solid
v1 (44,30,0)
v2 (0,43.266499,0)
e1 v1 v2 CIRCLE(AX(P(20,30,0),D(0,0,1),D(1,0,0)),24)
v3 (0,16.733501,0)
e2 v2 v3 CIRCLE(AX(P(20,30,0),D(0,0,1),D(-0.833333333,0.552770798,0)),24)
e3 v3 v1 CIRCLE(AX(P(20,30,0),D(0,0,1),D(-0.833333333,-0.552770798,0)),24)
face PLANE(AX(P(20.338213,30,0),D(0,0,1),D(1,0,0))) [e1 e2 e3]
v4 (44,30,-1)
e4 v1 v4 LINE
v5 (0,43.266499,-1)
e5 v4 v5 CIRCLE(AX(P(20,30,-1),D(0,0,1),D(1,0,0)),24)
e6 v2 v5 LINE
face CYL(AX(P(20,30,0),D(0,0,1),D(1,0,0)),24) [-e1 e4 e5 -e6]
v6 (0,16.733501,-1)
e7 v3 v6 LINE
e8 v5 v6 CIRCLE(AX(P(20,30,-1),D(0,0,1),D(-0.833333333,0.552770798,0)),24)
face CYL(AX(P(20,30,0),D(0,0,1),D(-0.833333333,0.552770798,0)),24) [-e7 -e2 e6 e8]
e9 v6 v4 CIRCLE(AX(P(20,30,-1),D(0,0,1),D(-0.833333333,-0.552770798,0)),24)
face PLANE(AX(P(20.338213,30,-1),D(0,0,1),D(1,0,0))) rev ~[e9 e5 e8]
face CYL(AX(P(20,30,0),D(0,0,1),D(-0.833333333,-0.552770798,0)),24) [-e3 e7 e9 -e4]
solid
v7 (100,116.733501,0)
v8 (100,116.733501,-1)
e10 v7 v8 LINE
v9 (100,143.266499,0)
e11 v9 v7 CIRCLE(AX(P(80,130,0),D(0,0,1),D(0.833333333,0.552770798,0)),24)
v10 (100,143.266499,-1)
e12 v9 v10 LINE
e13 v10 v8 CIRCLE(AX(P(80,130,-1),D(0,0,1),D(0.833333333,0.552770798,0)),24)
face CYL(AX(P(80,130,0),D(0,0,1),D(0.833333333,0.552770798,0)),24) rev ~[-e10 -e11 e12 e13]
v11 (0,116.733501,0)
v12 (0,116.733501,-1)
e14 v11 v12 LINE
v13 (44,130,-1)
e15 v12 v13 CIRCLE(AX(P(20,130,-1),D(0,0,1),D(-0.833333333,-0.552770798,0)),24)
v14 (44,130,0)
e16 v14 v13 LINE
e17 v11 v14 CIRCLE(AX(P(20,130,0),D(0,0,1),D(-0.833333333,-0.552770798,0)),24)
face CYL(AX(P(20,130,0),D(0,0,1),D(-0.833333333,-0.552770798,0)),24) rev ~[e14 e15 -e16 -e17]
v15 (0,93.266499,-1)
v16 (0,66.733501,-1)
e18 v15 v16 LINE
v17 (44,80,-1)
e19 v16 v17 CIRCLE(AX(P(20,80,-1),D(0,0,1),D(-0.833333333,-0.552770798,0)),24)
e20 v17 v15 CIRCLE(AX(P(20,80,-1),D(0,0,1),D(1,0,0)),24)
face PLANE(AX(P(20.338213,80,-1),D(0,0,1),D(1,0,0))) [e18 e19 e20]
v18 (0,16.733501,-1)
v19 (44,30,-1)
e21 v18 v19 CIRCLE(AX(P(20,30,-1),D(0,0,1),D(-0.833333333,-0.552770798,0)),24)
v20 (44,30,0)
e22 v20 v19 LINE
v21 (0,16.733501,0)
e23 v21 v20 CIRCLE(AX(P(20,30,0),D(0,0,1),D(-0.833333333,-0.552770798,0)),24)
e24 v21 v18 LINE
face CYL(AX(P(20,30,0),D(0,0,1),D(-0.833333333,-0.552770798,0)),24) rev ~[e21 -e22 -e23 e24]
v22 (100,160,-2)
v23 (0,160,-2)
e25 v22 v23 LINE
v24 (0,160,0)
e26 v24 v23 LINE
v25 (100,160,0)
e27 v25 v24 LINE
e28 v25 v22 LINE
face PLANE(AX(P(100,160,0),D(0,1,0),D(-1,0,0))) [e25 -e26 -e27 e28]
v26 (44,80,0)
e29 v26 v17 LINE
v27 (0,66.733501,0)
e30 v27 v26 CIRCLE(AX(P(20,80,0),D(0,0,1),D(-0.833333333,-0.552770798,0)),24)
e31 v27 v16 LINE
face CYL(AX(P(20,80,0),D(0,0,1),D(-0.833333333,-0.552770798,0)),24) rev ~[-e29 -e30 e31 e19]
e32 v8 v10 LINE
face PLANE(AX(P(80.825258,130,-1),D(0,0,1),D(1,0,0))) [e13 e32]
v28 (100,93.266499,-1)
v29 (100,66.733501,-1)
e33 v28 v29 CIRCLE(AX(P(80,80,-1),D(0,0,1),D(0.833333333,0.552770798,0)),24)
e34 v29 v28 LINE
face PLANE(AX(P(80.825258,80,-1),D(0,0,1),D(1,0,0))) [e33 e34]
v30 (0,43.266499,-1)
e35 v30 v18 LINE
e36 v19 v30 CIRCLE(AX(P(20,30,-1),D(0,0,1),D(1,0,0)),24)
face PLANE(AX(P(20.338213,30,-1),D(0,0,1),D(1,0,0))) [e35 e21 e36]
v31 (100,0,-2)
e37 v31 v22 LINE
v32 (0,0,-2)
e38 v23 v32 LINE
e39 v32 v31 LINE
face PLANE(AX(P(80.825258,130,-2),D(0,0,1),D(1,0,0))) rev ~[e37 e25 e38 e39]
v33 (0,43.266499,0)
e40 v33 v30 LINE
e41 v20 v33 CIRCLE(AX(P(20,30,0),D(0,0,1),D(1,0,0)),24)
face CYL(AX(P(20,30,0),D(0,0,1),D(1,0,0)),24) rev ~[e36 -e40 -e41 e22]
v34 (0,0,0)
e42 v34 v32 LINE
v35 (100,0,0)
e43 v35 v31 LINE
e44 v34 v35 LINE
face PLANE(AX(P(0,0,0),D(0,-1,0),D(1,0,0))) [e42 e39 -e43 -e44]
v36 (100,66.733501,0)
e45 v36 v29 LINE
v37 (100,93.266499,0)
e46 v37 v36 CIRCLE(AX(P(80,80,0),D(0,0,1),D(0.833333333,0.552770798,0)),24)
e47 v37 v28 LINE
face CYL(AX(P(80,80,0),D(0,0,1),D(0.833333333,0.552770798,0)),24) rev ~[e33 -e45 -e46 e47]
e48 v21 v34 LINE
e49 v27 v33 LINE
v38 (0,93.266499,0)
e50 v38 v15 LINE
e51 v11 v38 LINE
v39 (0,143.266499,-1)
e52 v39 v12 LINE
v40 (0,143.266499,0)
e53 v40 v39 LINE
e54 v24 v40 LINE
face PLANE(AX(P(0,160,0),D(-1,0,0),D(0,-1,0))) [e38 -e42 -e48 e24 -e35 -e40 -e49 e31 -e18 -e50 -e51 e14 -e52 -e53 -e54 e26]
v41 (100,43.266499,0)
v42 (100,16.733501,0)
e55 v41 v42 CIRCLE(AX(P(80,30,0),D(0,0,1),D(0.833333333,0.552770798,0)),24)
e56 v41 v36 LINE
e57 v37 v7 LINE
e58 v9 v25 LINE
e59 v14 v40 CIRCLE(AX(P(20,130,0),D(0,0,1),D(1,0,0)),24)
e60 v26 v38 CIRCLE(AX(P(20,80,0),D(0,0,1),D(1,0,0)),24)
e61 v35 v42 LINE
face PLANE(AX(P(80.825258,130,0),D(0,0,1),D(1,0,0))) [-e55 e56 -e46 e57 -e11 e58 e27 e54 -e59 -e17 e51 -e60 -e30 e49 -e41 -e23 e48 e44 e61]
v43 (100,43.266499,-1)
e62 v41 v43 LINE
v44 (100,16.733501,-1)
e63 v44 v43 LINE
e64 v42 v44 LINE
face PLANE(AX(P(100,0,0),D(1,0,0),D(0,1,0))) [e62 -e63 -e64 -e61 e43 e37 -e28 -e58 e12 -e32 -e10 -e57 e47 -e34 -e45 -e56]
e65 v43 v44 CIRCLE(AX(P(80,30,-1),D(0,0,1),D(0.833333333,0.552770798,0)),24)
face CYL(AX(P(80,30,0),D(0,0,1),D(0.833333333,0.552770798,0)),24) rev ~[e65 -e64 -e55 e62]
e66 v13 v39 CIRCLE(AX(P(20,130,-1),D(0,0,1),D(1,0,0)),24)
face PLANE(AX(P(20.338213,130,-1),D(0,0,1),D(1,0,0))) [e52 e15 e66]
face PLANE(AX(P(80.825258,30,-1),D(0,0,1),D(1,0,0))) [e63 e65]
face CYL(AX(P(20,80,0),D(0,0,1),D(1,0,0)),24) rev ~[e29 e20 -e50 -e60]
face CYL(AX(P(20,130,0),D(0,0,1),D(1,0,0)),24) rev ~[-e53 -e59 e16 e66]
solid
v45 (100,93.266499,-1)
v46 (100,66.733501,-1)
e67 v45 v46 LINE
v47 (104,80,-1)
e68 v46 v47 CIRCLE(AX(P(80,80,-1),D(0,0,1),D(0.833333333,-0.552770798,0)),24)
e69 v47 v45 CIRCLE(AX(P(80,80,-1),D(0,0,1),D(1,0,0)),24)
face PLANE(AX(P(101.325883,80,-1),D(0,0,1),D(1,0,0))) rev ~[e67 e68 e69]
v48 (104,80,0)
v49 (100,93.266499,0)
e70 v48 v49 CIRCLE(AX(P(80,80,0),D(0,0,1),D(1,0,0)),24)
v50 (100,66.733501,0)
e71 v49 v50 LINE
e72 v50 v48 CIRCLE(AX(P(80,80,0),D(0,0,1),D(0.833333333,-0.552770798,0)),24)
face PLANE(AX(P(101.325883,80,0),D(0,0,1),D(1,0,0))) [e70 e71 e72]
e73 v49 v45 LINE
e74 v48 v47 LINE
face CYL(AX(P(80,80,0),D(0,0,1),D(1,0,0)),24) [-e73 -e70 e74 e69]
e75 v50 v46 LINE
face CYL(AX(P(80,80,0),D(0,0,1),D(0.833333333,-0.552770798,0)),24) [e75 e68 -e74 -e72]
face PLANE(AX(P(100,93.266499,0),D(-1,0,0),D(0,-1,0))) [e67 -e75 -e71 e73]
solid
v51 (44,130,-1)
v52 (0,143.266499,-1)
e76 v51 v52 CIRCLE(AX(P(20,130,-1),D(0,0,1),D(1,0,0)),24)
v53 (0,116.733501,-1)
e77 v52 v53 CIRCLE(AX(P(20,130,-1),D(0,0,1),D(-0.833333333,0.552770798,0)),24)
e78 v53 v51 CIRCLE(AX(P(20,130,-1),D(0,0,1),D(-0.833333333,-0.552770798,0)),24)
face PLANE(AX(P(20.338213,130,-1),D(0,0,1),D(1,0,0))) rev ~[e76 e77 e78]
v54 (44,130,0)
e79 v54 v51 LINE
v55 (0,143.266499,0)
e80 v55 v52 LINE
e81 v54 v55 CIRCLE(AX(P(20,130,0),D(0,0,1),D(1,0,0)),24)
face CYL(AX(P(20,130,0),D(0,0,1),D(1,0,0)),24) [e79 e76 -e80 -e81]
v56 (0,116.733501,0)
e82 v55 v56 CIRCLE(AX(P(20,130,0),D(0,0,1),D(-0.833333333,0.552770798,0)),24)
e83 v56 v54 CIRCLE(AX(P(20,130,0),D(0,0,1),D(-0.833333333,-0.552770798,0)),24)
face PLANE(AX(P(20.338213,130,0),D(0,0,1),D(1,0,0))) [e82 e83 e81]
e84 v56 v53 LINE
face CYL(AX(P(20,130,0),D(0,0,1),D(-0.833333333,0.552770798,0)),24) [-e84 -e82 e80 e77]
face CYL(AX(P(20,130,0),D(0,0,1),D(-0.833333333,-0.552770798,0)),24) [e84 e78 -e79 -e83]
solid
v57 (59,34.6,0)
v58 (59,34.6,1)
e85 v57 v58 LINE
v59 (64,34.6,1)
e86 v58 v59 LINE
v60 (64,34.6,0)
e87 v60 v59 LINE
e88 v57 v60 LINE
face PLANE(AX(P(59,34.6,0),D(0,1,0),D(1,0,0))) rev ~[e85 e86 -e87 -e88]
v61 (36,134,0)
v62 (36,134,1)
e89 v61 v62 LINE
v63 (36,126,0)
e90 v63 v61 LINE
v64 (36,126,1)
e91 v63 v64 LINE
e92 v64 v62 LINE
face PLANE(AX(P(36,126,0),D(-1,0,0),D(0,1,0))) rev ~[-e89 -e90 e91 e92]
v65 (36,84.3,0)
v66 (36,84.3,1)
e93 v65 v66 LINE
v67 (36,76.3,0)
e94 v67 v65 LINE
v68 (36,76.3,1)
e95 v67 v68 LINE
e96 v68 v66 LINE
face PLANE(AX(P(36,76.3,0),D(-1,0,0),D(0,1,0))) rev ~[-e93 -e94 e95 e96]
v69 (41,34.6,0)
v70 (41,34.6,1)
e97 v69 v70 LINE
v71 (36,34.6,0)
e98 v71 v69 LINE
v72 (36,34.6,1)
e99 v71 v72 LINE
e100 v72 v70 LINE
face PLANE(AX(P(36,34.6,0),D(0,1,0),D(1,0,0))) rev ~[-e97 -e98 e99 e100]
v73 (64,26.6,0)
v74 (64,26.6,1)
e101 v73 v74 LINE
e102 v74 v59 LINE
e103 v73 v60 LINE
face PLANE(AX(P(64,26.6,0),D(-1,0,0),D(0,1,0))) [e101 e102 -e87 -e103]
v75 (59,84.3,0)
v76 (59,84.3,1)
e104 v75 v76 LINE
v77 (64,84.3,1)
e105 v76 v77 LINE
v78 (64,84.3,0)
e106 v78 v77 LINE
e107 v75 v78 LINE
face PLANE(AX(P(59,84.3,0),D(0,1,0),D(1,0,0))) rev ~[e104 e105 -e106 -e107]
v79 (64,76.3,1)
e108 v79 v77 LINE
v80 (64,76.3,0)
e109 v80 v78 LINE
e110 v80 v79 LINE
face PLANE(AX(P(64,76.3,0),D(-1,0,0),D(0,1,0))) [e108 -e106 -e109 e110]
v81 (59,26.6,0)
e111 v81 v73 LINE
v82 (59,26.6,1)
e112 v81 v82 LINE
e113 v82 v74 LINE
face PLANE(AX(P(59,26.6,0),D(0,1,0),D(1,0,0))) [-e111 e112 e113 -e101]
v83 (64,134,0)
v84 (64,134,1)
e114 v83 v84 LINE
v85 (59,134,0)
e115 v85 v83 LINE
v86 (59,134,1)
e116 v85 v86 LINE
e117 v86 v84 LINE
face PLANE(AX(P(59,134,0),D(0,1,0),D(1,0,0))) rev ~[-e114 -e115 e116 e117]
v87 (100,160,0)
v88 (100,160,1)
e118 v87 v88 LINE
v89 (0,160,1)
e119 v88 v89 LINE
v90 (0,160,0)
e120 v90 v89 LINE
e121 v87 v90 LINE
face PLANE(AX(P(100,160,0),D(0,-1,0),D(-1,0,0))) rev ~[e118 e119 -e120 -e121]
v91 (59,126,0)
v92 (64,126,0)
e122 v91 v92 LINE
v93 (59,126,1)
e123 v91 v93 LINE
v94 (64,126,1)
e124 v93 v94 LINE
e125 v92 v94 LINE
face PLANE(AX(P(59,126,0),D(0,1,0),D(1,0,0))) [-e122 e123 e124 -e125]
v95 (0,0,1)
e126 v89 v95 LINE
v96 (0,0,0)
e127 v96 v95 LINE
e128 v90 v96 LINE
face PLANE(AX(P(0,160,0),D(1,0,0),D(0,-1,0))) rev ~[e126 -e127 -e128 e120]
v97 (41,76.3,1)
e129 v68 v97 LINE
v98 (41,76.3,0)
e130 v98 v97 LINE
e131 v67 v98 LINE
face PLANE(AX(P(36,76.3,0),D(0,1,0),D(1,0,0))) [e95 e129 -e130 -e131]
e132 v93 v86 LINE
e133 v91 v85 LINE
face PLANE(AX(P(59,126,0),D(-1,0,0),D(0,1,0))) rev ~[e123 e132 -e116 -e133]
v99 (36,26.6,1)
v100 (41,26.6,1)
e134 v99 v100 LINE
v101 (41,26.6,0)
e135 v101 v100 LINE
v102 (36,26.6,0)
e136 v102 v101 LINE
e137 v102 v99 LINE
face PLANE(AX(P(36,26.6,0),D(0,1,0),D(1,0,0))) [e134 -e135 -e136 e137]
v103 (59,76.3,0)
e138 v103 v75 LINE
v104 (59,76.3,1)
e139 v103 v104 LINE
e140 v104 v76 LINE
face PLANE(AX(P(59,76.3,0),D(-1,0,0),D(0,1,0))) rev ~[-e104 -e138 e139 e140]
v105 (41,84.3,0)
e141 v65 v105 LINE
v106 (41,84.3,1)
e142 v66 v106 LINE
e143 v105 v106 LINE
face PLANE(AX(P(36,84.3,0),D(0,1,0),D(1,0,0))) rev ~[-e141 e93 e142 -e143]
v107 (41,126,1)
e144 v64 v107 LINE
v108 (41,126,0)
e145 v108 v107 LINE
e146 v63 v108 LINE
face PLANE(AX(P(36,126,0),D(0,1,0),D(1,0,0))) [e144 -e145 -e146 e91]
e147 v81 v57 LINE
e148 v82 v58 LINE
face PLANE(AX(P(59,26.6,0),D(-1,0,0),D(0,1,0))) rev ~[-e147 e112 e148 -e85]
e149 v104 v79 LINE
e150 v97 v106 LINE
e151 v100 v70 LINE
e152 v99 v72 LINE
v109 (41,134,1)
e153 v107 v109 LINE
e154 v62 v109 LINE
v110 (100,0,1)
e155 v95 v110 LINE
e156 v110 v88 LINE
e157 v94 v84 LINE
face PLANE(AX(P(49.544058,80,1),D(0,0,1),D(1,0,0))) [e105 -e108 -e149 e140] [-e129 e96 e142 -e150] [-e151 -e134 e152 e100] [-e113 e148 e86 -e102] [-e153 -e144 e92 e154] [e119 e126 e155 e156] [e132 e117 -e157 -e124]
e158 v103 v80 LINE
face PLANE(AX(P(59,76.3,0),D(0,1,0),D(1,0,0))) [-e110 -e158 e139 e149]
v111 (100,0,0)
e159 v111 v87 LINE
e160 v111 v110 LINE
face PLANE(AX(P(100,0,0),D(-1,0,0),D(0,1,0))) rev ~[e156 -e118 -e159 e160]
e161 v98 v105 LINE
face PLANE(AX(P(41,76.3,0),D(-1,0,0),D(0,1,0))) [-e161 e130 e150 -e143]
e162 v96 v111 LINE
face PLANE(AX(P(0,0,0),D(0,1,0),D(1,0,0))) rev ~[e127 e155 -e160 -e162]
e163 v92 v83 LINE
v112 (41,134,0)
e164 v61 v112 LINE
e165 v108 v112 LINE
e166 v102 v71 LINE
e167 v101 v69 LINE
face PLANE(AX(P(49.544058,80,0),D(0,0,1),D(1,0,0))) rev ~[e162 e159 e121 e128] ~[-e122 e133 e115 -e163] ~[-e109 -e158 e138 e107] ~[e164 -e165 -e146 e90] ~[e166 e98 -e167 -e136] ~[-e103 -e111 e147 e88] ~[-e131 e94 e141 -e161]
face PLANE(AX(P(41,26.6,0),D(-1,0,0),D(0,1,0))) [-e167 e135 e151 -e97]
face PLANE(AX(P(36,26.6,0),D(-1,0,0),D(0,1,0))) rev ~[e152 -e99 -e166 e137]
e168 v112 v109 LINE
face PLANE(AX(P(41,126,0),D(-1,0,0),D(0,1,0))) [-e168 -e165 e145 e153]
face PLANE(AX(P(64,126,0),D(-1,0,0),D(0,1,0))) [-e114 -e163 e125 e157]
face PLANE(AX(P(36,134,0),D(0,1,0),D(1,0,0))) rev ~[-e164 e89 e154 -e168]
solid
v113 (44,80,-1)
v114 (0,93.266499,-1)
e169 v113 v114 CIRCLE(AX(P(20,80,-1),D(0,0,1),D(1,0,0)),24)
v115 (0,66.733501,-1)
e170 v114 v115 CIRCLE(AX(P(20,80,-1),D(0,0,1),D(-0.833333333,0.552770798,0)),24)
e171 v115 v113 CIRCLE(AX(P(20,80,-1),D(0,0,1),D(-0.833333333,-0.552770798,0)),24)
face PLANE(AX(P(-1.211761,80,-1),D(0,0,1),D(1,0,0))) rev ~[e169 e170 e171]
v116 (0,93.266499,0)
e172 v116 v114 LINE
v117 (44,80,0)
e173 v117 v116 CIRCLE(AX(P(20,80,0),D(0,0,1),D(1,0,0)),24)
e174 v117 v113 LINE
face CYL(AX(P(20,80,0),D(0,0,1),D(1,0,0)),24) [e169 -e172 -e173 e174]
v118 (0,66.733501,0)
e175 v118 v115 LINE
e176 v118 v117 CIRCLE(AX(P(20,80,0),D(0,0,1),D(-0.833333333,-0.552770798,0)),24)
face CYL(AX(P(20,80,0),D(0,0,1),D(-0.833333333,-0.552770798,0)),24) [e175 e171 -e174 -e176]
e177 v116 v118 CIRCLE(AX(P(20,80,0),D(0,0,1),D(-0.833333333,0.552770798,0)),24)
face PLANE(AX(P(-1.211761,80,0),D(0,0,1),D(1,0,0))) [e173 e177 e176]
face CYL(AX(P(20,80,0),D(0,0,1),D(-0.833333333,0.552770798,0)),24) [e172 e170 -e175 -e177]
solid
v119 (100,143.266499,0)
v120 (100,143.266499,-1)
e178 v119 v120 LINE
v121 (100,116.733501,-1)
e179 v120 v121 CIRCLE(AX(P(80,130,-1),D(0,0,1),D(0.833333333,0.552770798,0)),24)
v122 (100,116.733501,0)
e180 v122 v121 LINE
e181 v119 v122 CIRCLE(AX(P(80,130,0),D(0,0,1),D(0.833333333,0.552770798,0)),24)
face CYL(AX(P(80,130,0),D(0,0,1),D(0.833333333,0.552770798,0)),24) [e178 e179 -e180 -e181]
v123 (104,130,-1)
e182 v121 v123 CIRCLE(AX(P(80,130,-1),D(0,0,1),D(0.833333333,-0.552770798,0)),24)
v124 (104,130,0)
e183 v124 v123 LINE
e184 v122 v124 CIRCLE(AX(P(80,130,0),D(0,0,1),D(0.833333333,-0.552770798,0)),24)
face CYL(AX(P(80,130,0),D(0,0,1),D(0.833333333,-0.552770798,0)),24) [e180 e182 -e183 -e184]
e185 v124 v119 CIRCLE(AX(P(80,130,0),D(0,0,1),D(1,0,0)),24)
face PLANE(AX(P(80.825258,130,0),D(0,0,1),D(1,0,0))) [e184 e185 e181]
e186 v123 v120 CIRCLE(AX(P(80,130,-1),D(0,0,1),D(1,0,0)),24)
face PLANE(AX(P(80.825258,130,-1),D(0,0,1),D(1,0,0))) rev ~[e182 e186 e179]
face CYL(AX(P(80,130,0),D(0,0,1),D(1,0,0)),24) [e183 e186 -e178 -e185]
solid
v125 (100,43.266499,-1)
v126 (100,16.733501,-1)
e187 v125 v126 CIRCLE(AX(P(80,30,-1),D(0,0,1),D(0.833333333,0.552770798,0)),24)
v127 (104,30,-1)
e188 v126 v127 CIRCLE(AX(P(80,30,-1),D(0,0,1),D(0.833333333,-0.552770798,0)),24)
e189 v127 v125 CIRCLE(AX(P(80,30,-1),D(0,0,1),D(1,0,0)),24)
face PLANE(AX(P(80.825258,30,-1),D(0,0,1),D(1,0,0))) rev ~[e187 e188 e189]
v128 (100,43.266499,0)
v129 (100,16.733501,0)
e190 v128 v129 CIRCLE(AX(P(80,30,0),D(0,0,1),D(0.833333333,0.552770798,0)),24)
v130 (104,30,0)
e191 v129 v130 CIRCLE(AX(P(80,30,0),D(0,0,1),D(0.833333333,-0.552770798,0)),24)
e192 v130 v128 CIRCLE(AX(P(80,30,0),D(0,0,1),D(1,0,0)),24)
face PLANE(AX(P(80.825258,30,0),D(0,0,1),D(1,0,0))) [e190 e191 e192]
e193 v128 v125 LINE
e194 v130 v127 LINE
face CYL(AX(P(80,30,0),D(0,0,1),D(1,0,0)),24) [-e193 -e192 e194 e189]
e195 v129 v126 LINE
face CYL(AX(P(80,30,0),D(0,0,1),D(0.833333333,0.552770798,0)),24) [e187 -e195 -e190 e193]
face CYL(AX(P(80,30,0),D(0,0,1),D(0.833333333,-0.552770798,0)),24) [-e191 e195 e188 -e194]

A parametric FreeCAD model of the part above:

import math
import FreeCAD as App
import Part
import Sketcher
Q = App.Units.Quantity

doc = App.newDocument("Part")
body = doc.addObject("PartDesign::Body", "Body")

# Sketch on XY plane
sketch1 = body.newObject("Sketcher::SketchObject", "Sketch")
sketch1.AttachmentSupport = (doc.getObject("XY_Plane"), [""])
sketch1.MapMode = "FlatFace"
sketch1.addGeometry([
    Part.LineSegment(App.Vector(100, 160, 0), App.Vector(0, 160, 0)),
    Part.LineSegment(App.Vector(0, 160, 0), App.Vector(0, 0, 0)),
    Part.LineSegment(App.Vector(0, 0, 0), App.Vector(100, 0, 0)),
    Part.LineSegment(App.Vector(100, 0, 0), App.Vector(100, 160, 0)),
], False)
sketch1.addConstraint([
    Sketcher.Constraint("Coincident", 0, 2, 1, 1),
    Sketcher.Constraint("Coincident", 1, 2, 2, 1),
    Sketcher.Constraint("Coincident", 2, 2, 3, 1),
    Sketcher.Constraint("Coincident", 3, 2, 0, 1),
    Sketcher.Constraint("Horizontal", 0),
    Sketcher.Constraint("Vertical", 1),
    Sketcher.Constraint("Horizontal", 2),
    Sketcher.Constraint("Vertical", 3),
    Sketcher.Constraint("Coincident", 1, 2, -1, 1),
    Sketcher.Constraint("DistanceX", 0, 2, 0, 1, Q("100 mm")),
    Sketcher.Constraint("DistanceY", 1, 2, 1, 1, Q("160 mm")),
])
pad1 = body.newObject("PartDesign::Pad", "Pad")
pad1.Profile = sketch1
pad1.Length = 2
pad1.Reversed = True

# Sketch on XY plane
sketch2 = body.newObject("Sketcher::SketchObject", "Sketch001")
sketch2.AttachmentSupport = (doc.getObject("XY_Plane"), [""])
sketch2.MapMode = "FlatFace"
sketch2.addGeometry([
    Part.LineSegment(App.Vector(0, 143.266499, 0), App.Vector(0, 116.733501, 0)),  # 0
    Part.ArcOfCircle(Part.Circle(App.Vector(20, 130, 0), App.Vector(0, 0, 1), 24), math.radians(-146.44269), math.radians(0)),  # 1
    Part.ArcOfCircle(Part.Circle(App.Vector(20, 130, 0), App.Vector(0, 0, 1), 24), math.radians(0), math.radians(146.44269)),  # 2
    Part.ArcOfCircle(Part.Circle(App.Vector(80, 130, 0), App.Vector(0, 0, 1), 24), math.radians(33.55731), math.radians(326.44269)),  # 3
    Part.LineSegment(App.Vector(100, 116.733501, 0), App.Vector(100, 143.266499, 0)),  # 4
    Part.LineSegment(App.Vector(0, 93.266499, 0), App.Vector(0, 66.733501, 0)),  # 5
    Part.ArcOfCircle(Part.Circle(App.Vector(20, 80, 0), App.Vector(0, 0, 1), 24), math.radians(-146.44269), math.radians(0)),  # 6
    Part.ArcOfCircle(Part.Circle(App.Vector(20, 80, 0), App.Vector(0, 0, 1), 24), math.radians(0), math.radians(146.44269)),  # 7
    Part.ArcOfCircle(Part.Circle(App.Vector(80, 80, 0), App.Vector(0, 0, 1), 24), math.radians(33.55731), math.radians(326.44269)),  # 8
    Part.LineSegment(App.Vector(100, 66.733501, 0), App.Vector(100, 93.266499, 0)),  # 9
    Part.LineSegment(App.Vector(0, 43.266499, 0), App.Vector(0, 16.733501, 0)),  # 10
    Part.ArcOfCircle(Part.Circle(App.Vector(20, 30, 0), App.Vector(0, 0, 1), 24), math.radians(-146.44269), math.radians(0)),  # 11
    Part.ArcOfCircle(Part.Circle(App.Vector(20, 30, 0), App.Vector(0, 0, 1), 24), math.radians(0), math.radians(146.44269)),  # 12
    Part.ArcOfCircle(Part.Circle(App.Vector(80, 30, 0), App.Vector(0, 0, 1), 24), math.radians(33.55731), math.radians(326.44269)),  # 13
    Part.LineSegment(App.Vector(100, 16.733501, 0), App.Vector(100, 43.266499, 0)),  # 14
], False)
sketch2.addConstraint([
    Sketcher.Constraint("Coincident", 0, 2, 1, 1),
    Sketcher.Constraint("Tangent", 1, 2, 2, 1),
    Sketcher.Constraint("Coincident", 2, 2, 0, 1),
    Sketcher.Constraint("Coincident", 3, 1, 4, 2),
    Sketcher.Constraint("Coincident", 4, 1, 3, 2),
    Sketcher.Constraint("Coincident", 5, 2, 6, 1),
    Sketcher.Constraint("Tangent", 6, 2, 7, 1),
    Sketcher.Constraint("Coincident", 7, 2, 5, 1),
    Sketcher.Constraint("Coincident", 8, 1, 9, 2),
    Sketcher.Constraint("Coincident", 9, 1, 8, 2),
    Sketcher.Constraint("Coincident", 10, 2, 11, 1),
    Sketcher.Constraint("Tangent", 11, 2, 12, 1),
    Sketcher.Constraint("Coincident", 12, 2, 10, 1),
    Sketcher.Constraint("Coincident", 13, 1, 14, 2),
    Sketcher.Constraint("Coincident", 14, 1, 13, 2),
    Sketcher.Constraint("Vertical", 0),
    Sketcher.Constraint("Vertical", 4),
    Sketcher.Constraint("Vertical", 5),
    Sketcher.Constraint("Vertical", 9),
    Sketcher.Constraint("Vertical", 10),
    Sketcher.Constraint("Vertical", 14),
    Sketcher.Constraint("Equal", 1, 2),
    Sketcher.Constraint("Equal", 2, 3),
    Sketcher.Constraint("Equal", 3, 6),
    Sketcher.Constraint("Equal", 6, 7),
    Sketcher.Constraint("Equal", 7, 8),
    Sketcher.Constraint("Equal", 8, 11),
    Sketcher.Constraint("Equal", 11, 12),
    Sketcher.Constraint("Equal", 12, 13),
    Sketcher.Constraint("PointOnObject", 0, 2, -2),
    Sketcher.Constraint("PointOnObject", 5, 2, -2),
    Sketcher.Constraint("PointOnObject", 10, 2, -2),
    Sketcher.Constraint("Horizontal", 2, 3, 3, 3),
    Sketcher.Constraint("Horizontal", 7, 3, 8, 3),
    Sketcher.Constraint("Horizontal", 12, 3, 13, 3),
    Sketcher.Constraint("Horizontal", 3, 3, 1, 2),
    Sketcher.Constraint("Horizontal", 2, 2, 3, 1),
    Sketcher.Constraint("Horizontal", 8, 3, 6, 2),
    Sketcher.Constraint("Horizontal", 7, 2, 8, 1),
    Sketcher.Constraint("Horizontal", 13, 3, 11, 2),
    Sketcher.Constraint("Horizontal", 12, 2, 13, 1),
    Sketcher.Constraint("Vertical", 2, 3, 6, 3),
    Sketcher.Constraint("Vertical", 3, 3, 8, 3),
    Sketcher.Constraint("Vertical", 7, 3, 11, 3),
    Sketcher.Constraint("Vertical", 8, 3, 13, 3),
    Sketcher.Constraint("Radius", 1, Q("24 mm")),
    Sketcher.Constraint("DistanceX", -1, 1, 1, 3, Q("20 mm")),
    Sketcher.Constraint("DistanceY", -1, 1, 1, 3, Q("130 mm")),
    Sketcher.Constraint("DistanceX", -1, 1, 3, 3, Q("80 mm")),
    Sketcher.Constraint("DistanceY", -1, 1, 6, 3, Q("80 mm")),
    Sketcher.Constraint("DistanceY", -1, 1, 11, 3, Q("30 mm")),
])
pocket1 = body.newObject("PartDesign::Pocket", "Pocket")
pocket1.Profile = sketch2
pocket1.Length = 1
body2 = doc.addObject("PartDesign::Body", "Body001")

# Sketch on XY plane
sketch3 = body2.newObject("Sketcher::SketchObject", "Sketch002")
sketch3.AttachmentSupport = (doc.getObject("XY_Plane001"), [""])
sketch3.MapMode = "FlatFace"
sketch3.addGeometry([
    Part.ArcOfCircle(Part.Circle(App.Vector(20, 130, 0), App.Vector(0, 0, 1), 24), math.radians(0), math.radians(146.44269)),
    Part.ArcOfCircle(Part.Circle(App.Vector(20, 130, 0), App.Vector(0, 0, 1), 24), math.radians(146.44269), math.radians(213.55731)),
    Part.ArcOfCircle(Part.Circle(App.Vector(20, 130, 0), App.Vector(0, 0, 1), 24), math.radians(-146.44269), math.radians(0)),
], False)
sketch3.addConstraint([
    Sketcher.Constraint("Tangent", 0, 2, 1, 1),
    Sketcher.Constraint("Tangent", 1, 2, 2, 1),
    Sketcher.Constraint("Tangent", 2, 2, 0, 1),
    Sketcher.Constraint("PointOnObject", 0, 2, -2),
    Sketcher.Constraint("PointOnObject", 1, 2, -2),
    Sketcher.Constraint("Horizontal", 1, 3, 2, 2),
    Sketcher.Constraint("Radius", 0, Q("24 mm")),
    Sketcher.Constraint("DistanceX", -1, 1, 0, 3, Q("20 mm")),
    Sketcher.Constraint("DistanceY", -1, 1, 0, 3, Q("130 mm")),
])
pad2 = body2.newObject("PartDesign::Pad", "Pad001")
pad2.Profile = sketch3
pad2.Length = 1
pad2.Reversed = True
body3 = doc.addObject("PartDesign::Body", "Body002")

# Sketch on XY plane
sketch4 = body3.newObject("Sketcher::SketchObject", "Sketch003")
sketch4.AttachmentSupport = (doc.getObject("XY_Plane002"), [""])
sketch4.MapMode = "FlatFace"
sketch4.addGeometry([
    Part.ArcOfCircle(Part.Circle(App.Vector(80, 130, 0), App.Vector(0, 0, 1), 24), math.radians(33.55731), math.radians(326.44269)),
    Part.ArcOfCircle(Part.Circle(App.Vector(80, 130, 0), App.Vector(0, 0, 1), 24), math.radians(-33.55731), math.radians(0)),
    Part.ArcOfCircle(Part.Circle(App.Vector(80, 130, 0), App.Vector(0, 0, 1), 24), math.radians(0), math.radians(33.55731)),
], False)
sketch4.addConstraint([
    Sketcher.Constraint("Tangent", 0, 2, 1, 1),
    Sketcher.Constraint("Tangent", 1, 2, 2, 1),
    Sketcher.Constraint("Tangent", 2, 2, 0, 1),
    Sketcher.Constraint("Horizontal", 2, 3, 1, 2),
    Sketcher.Constraint("Vertical", 0, 2, 2, 2),
    Sketcher.Constraint("Radius", 0, Q("24 mm")),
    Sketcher.Constraint("DistanceX", -1, 1, 0, 3, Q("80 mm")),
    Sketcher.Constraint("DistanceY", -1, 1, 0, 3, Q("130 mm")),
    Sketcher.Constraint("DistanceX", -1, 1, 0, 2, Q("100 mm")),
])
pad3 = body3.newObject("PartDesign::Pad", "Pad002")
pad3.Profile = sketch4
pad3.Length = 1
pad3.Reversed = True
body4 = doc.addObject("PartDesign::Body", "Body003")

# Sketch on XY plane
sketch5 = body4.newObject("Sketcher::SketchObject", "Sketch004")
sketch5.AttachmentSupport = (doc.getObject("XY_Plane003"), [""])
sketch5.MapMode = "FlatFace"
sketch5.addGeometry([
    Part.LineSegment(App.Vector(100, 93.266499, 0), App.Vector(100, 66.733501, 0)),
    Part.ArcOfCircle(Part.Circle(App.Vector(80, 80, 0), App.Vector(0, 0, 1), 24), math.radians(-33.55731), math.radians(0)),
    Part.ArcOfCircle(Part.Circle(App.Vector(80, 80, 0), App.Vector(0, 0, 1), 24), math.radians(0), math.radians(33.55731)),
], False)
sketch5.addConstraint([
    Sketcher.Constraint("Coincident", 0, 2, 1, 1),
    Sketcher.Constraint("Tangent", 1, 2, 2, 1),
    Sketcher.Constraint("Coincident", 2, 2, 0, 1),
    Sketcher.Constraint("Vertical", 0),
    Sketcher.Constraint("Equal", 1, 2),
    Sketcher.Constraint("Horizontal", 2, 3, 1, 2),
    Sketcher.Constraint("Radius", 1, Q("24 mm")),
    Sketcher.Constraint("DistanceX", -1, 1, 1, 3, Q("80 mm")),
    Sketcher.Constraint("DistanceY", -1, 1, 1, 3, Q("80 mm")),
    Sketcher.Constraint("DistanceX", -1, 1, 0, 2, Q("100 mm")),
])
pad4 = body4.newObject("PartDesign::Pad", "Pad003")
pad4.Profile = sketch5
pad4.Length = 1
pad4.Reversed = True
body5 = doc.addObject("PartDesign::Body", "Body004")

# Sketch on XY plane
sketch6 = body5.newObject("Sketcher::SketchObject", "Sketch005")
sketch6.AttachmentSupport = (doc.getObject("XY_Plane004"), [""])
sketch6.MapMode = "FlatFace"
sketch6.addGeometry([
    Part.ArcOfCircle(Part.Circle(App.Vector(80, 30, 0), App.Vector(0, 0, 1), 24), math.radians(33.55731), math.radians(326.44269)),
    Part.ArcOfCircle(Part.Circle(App.Vector(80, 30, 0), App.Vector(0, 0, 1), 24), math.radians(-33.55731), math.radians(0)),
    Part.ArcOfCircle(Part.Circle(App.Vector(80, 30, 0), App.Vector(0, 0, 1), 24), math.radians(0), math.radians(33.55731)),
], False)
sketch6.addConstraint([
    Sketcher.Constraint("Tangent", 0, 2, 1, 1),
    Sketcher.Constraint("Tangent", 1, 2, 2, 1),
    Sketcher.Constraint("Tangent", 2, 2, 0, 1),
    Sketcher.Constraint("Horizontal", 2, 3, 1, 2),
    Sketcher.Constraint("Vertical", 0, 2, 2, 2),
    Sketcher.Constraint("Radius", 0, Q("24 mm")),
    Sketcher.Constraint("DistanceX", -1, 1, 0, 3, Q("80 mm")),
    Sketcher.Constraint("DistanceY", -1, 1, 0, 3, Q("30 mm")),
    Sketcher.Constraint("DistanceX", -1, 1, 0, 2, Q("100 mm")),
])
pad5 = body5.newObject("PartDesign::Pad", "Pad004")
pad5.Profile = sketch6
pad5.Length = 1
pad5.Reversed = True
body6 = doc.addObject("PartDesign::Body", "Body005")

# Sketch on XY plane
sketch7 = body6.newObject("Sketcher::SketchObject", "Sketch006")
sketch7.AttachmentSupport = (doc.getObject("XY_Plane005"), [""])
sketch7.MapMode = "FlatFace"
sketch7.addGeometry([
    Part.ArcOfCircle(Part.Circle(App.Vector(20, 30, 0), App.Vector(0, 0, 1), 24), math.radians(0), math.radians(146.44269)),
    Part.ArcOfCircle(Part.Circle(App.Vector(20, 30, 0), App.Vector(0, 0, 1), 24), math.radians(146.44269), math.radians(213.55731)),
    Part.ArcOfCircle(Part.Circle(App.Vector(20, 30, 0), App.Vector(0, 0, 1), 24), math.radians(-146.44269), math.radians(0)),
], False)
sketch7.addConstraint([
    Sketcher.Constraint("Tangent", 0, 2, 1, 1),
    Sketcher.Constraint("Tangent", 1, 2, 2, 1),
    Sketcher.Constraint("Tangent", 2, 2, 0, 1),
    Sketcher.Constraint("PointOnObject", 0, 2, -2),
    Sketcher.Constraint("PointOnObject", 1, 2, -2),
    Sketcher.Constraint("Horizontal", 1, 3, 2, 2),
    Sketcher.Constraint("Radius", 0, Q("24 mm")),
    Sketcher.Constraint("DistanceX", -1, 1, 0, 3, Q("20 mm")),
    Sketcher.Constraint("DistanceY", -1, 1, 0, 3, Q("30 mm")),
])
pad6 = body6.newObject("PartDesign::Pad", "Pad005")
pad6.Profile = sketch7
pad6.Length = 1
pad6.Reversed = True
body7 = doc.addObject("PartDesign::Body", "Body006")

# Sketch on XY plane
sketch8 = body7.newObject("Sketcher::SketchObject", "Sketch007")
sketch8.AttachmentSupport = (doc.getObject("XY_Plane006"), [""])
sketch8.MapMode = "FlatFace"
sketch8.addGeometry([
    Part.ArcOfCircle(Part.Circle(App.Vector(20, 80, 0), App.Vector(0, 0, 1), 24), math.radians(146.44269), math.radians(213.55731)),
    Part.ArcOfCircle(Part.Circle(App.Vector(20, 80, 0), App.Vector(0, 0, 1), 24), math.radians(-146.44269), math.radians(0)),
    Part.ArcOfCircle(Part.Circle(App.Vector(20, 80, 0), App.Vector(0, 0, 1), 24), math.radians(0), math.radians(146.44269)),
], False)
sketch8.addConstraint([
    Sketcher.Constraint("Tangent", 0, 2, 1, 1),
    Sketcher.Constraint("Tangent", 1, 2, 2, 1),
    Sketcher.Constraint("Tangent", 2, 2, 0, 1),
    Sketcher.Constraint("PointOnObject", 0, 2, -2),
    Sketcher.Constraint("PointOnObject", 2, 2, -2),
    Sketcher.Constraint("Horizontal", 2, 3, 1, 2),
    Sketcher.Constraint("Radius", 0, Q("24 mm")),
    Sketcher.Constraint("DistanceX", -1, 1, 0, 3, Q("20 mm")),
    Sketcher.Constraint("DistanceY", -1, 1, 0, 3, Q("80 mm")),
])
pad7 = body7.newObject("PartDesign::Pad", "Pad006")
pad7.Profile = sketch8
pad7.Length = 1
pad7.Reversed = True
body8 = doc.addObject("PartDesign::Body", "Body007")

# Sketch on XY plane
sketch9 = body8.newObject("Sketcher::SketchObject", "Sketch008")
sketch9.AttachmentSupport = (doc.getObject("XY_Plane007"), [""])
sketch9.MapMode = "FlatFace"
sketch9.addGeometry([
    Part.LineSegment(App.Vector(0, 0, 0), App.Vector(100, 0, 0)),  # 0
    Part.LineSegment(App.Vector(100, 0, 0), App.Vector(100, 160, 0)),  # 1
    Part.LineSegment(App.Vector(100, 160, 0), App.Vector(0, 160, 0)),  # 2
    Part.LineSegment(App.Vector(0, 160, 0), App.Vector(0, 0, 0)),  # 3
    Part.LineSegment(App.Vector(41, 26.6, 0), App.Vector(36, 26.6, 0)),  # 4
    Part.LineSegment(App.Vector(36, 26.6, 0), App.Vector(36, 34.6, 0)),  # 5
    Part.LineSegment(App.Vector(36, 34.6, 0), App.Vector(41, 34.6, 0)),  # 6
    Part.LineSegment(App.Vector(41, 34.6, 0), App.Vector(41, 26.6, 0)),  # 7
    Part.LineSegment(App.Vector(41, 76.3, 0), App.Vector(36, 76.3, 0)),  # 8
    Part.LineSegment(App.Vector(36, 76.3, 0), App.Vector(36, 84.3, 0)),  # 9
    Part.LineSegment(App.Vector(36, 84.3, 0), App.Vector(41, 84.3, 0)),  # 10
    Part.LineSegment(App.Vector(41, 84.3, 0), App.Vector(41, 76.3, 0)),  # 11
    Part.LineSegment(App.Vector(64, 26.6, 0), App.Vector(59, 26.6, 0)),  # 12
    Part.LineSegment(App.Vector(59, 26.6, 0), App.Vector(59, 34.6, 0)),  # 13
    Part.LineSegment(App.Vector(59, 34.6, 0), App.Vector(64, 34.6, 0)),  # 14
    Part.LineSegment(App.Vector(64, 34.6, 0), App.Vector(64, 26.6, 0)),  # 15
    Part.LineSegment(App.Vector(64, 76.3, 0), App.Vector(59, 76.3, 0)),  # 16
    Part.LineSegment(App.Vector(59, 76.3, 0), App.Vector(59, 84.3, 0)),  # 17
    Part.LineSegment(App.Vector(59, 84.3, 0), App.Vector(64, 84.3, 0)),  # 18
    Part.LineSegment(App.Vector(64, 84.3, 0), App.Vector(64, 76.3, 0)),  # 19
    Part.LineSegment(App.Vector(41, 126, 0), App.Vector(36, 126, 0)),  # 20
    Part.LineSegment(App.Vector(36, 126, 0), App.Vector(36, 134, 0)),  # 21
    Part.LineSegment(App.Vector(36, 134, 0), App.Vector(41, 134, 0)),  # 22
    Part.LineSegment(App.Vector(41, 134, 0), App.Vector(41, 126, 0)),  # 23
    Part.LineSegment(App.Vector(64, 126, 0), App.Vector(59, 126, 0)),  # 24
    Part.LineSegment(App.Vector(59, 126, 0), App.Vector(59, 134, 0)),  # 25
    Part.LineSegment(App.Vector(59, 134, 0), App.Vector(64, 134, 0)),  # 26
    Part.LineSegment(App.Vector(64, 134, 0), App.Vector(64, 126, 0)),  # 27
], False)
sketch9.addConstraint([
    Sketcher.Constraint("Coincident", 0, 2, 1, 1),
    Sketcher.Constraint("Coincident", 1, 2, 2, 1),
    Sketcher.Constraint("Coincident", 2, 2, 3, 1),
    Sketcher.Constraint("Coincident", 3, 2, 0, 1),
    Sketcher.Constraint("Coincident", 4, 2, 5, 1),
    Sketcher.Constraint("Coincident", 5, 2, 6, 1),
    Sketcher.Constraint("Coincident", 6, 2, 7, 1),
    Sketcher.Constraint("Coincident", 7, 2, 4, 1),
    Sketcher.Constraint("Coincident", 8, 2, 9, 1),
    Sketcher.Constraint("Coincident", 9, 2, 10, 1),
    Sketcher.Constraint("Coincident", 10, 2, 11, 1),
    Sketcher.Constraint("Coincident", 11, 2, 8, 1),
    Sketcher.Constraint("Coincident", 12, 2, 13, 1),
    Sketcher.Constraint("Coincident", 13, 2, 14, 1),
    Sketcher.Constraint("Coincident", 14, 2, 15, 1),
    Sketcher.Constraint("Coincident", 15, 2, 12, 1),
    Sketcher.Constraint("Coincident", 16, 2, 17, 1),
    Sketcher.Constraint("Coincident", 17, 2, 18, 1),
    Sketcher.Constraint("Coincident", 18, 2, 19, 1),
    Sketcher.Constraint("Coincident", 19, 2, 16, 1),
    Sketcher.Constraint("Coincident", 20, 2, 21, 1),
    Sketcher.Constraint("Coincident", 21, 2, 22, 1),
    Sketcher.Constraint("Coincident", 22, 2, 23, 1),
    Sketcher.Constraint("Coincident", 23, 2, 20, 1),
    Sketcher.Constraint("Coincident", 24, 2, 25, 1),
    Sketcher.Constraint("Coincident", 25, 2, 26, 1),
    Sketcher.Constraint("Coincident", 26, 2, 27, 1),
    Sketcher.Constraint("Coincident", 27, 2, 24, 1),
    Sketcher.Constraint("Horizontal", 0),
    Sketcher.Constraint("Vertical", 1),
    Sketcher.Constraint("Horizontal", 2),
    Sketcher.Constraint("Vertical", 3),
    Sketcher.Constraint("Horizontal", 4),
    Sketcher.Constraint("Vertical", 5),
    Sketcher.Constraint("Horizontal", 6),
    Sketcher.Constraint("Vertical", 7),
    Sketcher.Constraint("Horizontal", 8),
    Sketcher.Constraint("Vertical", 9),
    Sketcher.Constraint("Horizontal", 10),
    Sketcher.Constraint("Vertical", 11),
    Sketcher.Constraint("Horizontal", 12),
    Sketcher.Constraint("Vertical", 13),
    Sketcher.Constraint("Horizontal", 14),
    Sketcher.Constraint("Vertical", 15),
    Sketcher.Constraint("Horizontal", 16),
    Sketcher.Constraint("Vertical", 17),
    Sketcher.Constraint("Horizontal", 18),
    Sketcher.Constraint("Vertical", 19),
    Sketcher.Constraint("Horizontal", 20),
    Sketcher.Constraint("Vertical", 21),
    Sketcher.Constraint("Horizontal", 22),
    Sketcher.Constraint("Vertical", 23),
    Sketcher.Constraint("Horizontal", 24),
    Sketcher.Constraint("Vertical", 25),
    Sketcher.Constraint("Horizontal", 26),
    Sketcher.Constraint("Vertical", 27),
    Sketcher.Constraint("Coincident", 3, 2, -1, 1),
    Sketcher.Constraint("Horizontal", 7, 2, 12, 2),
    Sketcher.Constraint("Horizontal", 6, 2, 13, 2),
    Sketcher.Constraint("Horizontal", 11, 2, 16, 2),
    Sketcher.Constraint("Horizontal", 10, 2, 17, 2),
    Sketcher.Constraint("Horizontal", 23, 2, 24, 2),
    Sketcher.Constraint("Horizontal", 22, 2, 25, 2),
    Sketcher.Constraint("Vertical", 5, 2, 8, 2),
    Sketcher.Constraint("Vertical", 7, 2, 10, 2),
    Sketcher.Constraint("Vertical", 13, 2, 16, 2),
    Sketcher.Constraint("Vertical", 15, 2, 18, 2),
    Sketcher.Constraint("Vertical", 9, 2, 20, 2),
    Sketcher.Constraint("Vertical", 11, 2, 22, 2),
    Sketcher.Constraint("Vertical", 17, 2, 24, 2),
    Sketcher.Constraint("Vertical", 19, 2, 26, 2),
    Sketcher.Constraint("Equal", 10, 12),
    Sketcher.Constraint("Equal", 7, 9),
    Sketcher.Constraint("Equal", 19, 21),
    Sketcher.Constraint("DistanceX", 0, 1, 0, 2, Q("100 mm")),
    Sketcher.Constraint("DistanceX", 4, 2, 4, 1, Q("5 mm")),
    Sketcher.Constraint("DistanceY", 1, 1, 1, 2, Q("160 mm")),
    Sketcher.Constraint("DistanceY", 5, 1, 5, 2, Q("8 mm")),
    Sketcher.Constraint("DistanceX", -1, 1, 4, 2, Q("36 mm")),
    Sketcher.Constraint("DistanceX", -1, 1, 12, 2, Q("59 mm")),
    Sketcher.Constraint("DistanceY", -1, 1, 20, 2, Q("126 mm")),
    Sketcher.Constraint("DistanceY", -1, 1, 4, 2, Q("26.6 mm")),
    Sketcher.Constraint("DistanceY", -1, 1, 8, 2, Q("76.3 mm")),
])
pad8 = body8.newObject("PartDesign::Pad", "Pad007")
pad8.Profile = sketch9
pad8.Length = 1

doc.recompute()
